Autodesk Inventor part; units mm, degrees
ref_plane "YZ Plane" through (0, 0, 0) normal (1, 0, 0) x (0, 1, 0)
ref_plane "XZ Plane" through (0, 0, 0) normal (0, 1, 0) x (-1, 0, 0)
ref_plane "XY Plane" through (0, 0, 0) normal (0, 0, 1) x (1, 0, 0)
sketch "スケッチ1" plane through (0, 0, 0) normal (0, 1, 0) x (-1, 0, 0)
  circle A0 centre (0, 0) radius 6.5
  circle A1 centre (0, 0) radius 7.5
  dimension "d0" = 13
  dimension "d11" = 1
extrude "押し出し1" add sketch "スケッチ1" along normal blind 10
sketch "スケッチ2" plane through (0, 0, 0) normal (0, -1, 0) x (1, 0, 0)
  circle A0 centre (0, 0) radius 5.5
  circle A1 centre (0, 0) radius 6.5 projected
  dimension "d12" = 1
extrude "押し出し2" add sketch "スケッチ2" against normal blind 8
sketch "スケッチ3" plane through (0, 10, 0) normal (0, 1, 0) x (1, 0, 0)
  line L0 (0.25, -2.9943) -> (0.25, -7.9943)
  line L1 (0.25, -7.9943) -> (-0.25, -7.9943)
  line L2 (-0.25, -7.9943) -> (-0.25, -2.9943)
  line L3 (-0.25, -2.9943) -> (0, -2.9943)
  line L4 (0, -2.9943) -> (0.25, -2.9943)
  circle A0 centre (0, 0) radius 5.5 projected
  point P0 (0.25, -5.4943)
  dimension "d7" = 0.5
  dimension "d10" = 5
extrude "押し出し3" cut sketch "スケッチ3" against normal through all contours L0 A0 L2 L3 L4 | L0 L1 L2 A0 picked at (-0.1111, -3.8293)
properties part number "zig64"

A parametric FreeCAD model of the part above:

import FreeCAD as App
import Part
import Sketcher

doc = App.newDocument("Part")
body = doc.addObject("PartDesign::Body", "Body")

sketch1 = body.newObject("Sketcher::SketchObject", "Sketch")
sketch1.AttachmentSupport = (doc.getObject("XZ_Plane"), [""])
sketch1.MapMode = "FlatFace"
sketch1.addGeometry(Part.Circle(App.Vector(0, 0, 0), App.Vector(0, 0, 1), 7.5), False)
sketch1.addGeometry(Part.Circle(App.Vector(0, 0, 0), App.Vector(0, 0, 1), 6.5), False)
sketch1.addConstraint(Sketcher.Constraint("Coincident", 0, 3, -1, 1))
sketch1.addConstraint(Sketcher.Constraint("Coincident", 1, 3, -1, 1))
sketch1.addConstraint(Sketcher.Constraint("Diameter", 1, 13.0))
sketch1.addConstraint(Sketcher.Constraint("Diameter", 0, 15.0))
pad1 = body.newObject("PartDesign::Pad", "Pad")
pad1.Profile = sketch1
pad1.Length = 10
pad1.Reversed = True

sketch2 = body.newObject("Sketcher::SketchObject", "Sketch001")
sketch2.AttachmentSupport = (doc.getObject("XZ_Plane"), [""])
sketch2.MapMode = "FlatFace"
sketch2.addGeometry(Part.Circle(App.Vector(0, 0, 0), App.Vector(0, 0, 1), 6.5), False)
sketch2.addGeometry(Part.Circle(App.Vector(0, 0, 0), App.Vector(0, 0, 1), 5.5), False)
sketch2.addConstraint(Sketcher.Constraint("Coincident", 0, 3, -1, 1))
sketch2.addConstraint(Sketcher.Constraint("Coincident", 1, 3, -1, 1))
sketch2.addConstraint(Sketcher.Constraint("Diameter", 0, 13.0))
sketch2.addConstraint(Sketcher.Constraint("Diameter", 1, 11.0))
pad2 = body.newObject("PartDesign::Pad", "Pad001")
pad2.Profile = sketch2
pad2.Length = 8
pad2.Reversed = True

sketch3 = body.newObject("Sketcher::SketchObject", "Sketch002")
sketch3.AttachmentSupport = (doc.getObject("XZ_Plane"), [""])
sketch3.MapMode = "FlatFace"
sketch3.AttachmentOffset = App.Placement(App.Vector(0, 0, -10), App.Rotation())
sketch3.addGeometry(Part.LineSegment(App.Vector(0.25, 2.9943, 0), App.Vector(-0.25, 2.9943, 0)), False)
sketch3.addGeometry(Part.LineSegment(App.Vector(-0.25, 2.9943, 0), App.Vector(-0.25, 7.9943, 0)), False)
sketch3.addGeometry(Part.LineSegment(App.Vector(-0.25, 7.9943, 0), App.Vector(0.25, 7.9943, 0)), False)
sketch3.addGeometry(Part.LineSegment(App.Vector(0.25, 7.9943, 0), App.Vector(0.25, 2.9943, 0)), False)
sketch3.addConstraint(Sketcher.Constraint("Coincident", 0, 2, 1, 1))
sketch3.addConstraint(Sketcher.Constraint("Coincident", 1, 2, 2, 1))
sketch3.addConstraint(Sketcher.Constraint("Coincident", 2, 2, 3, 1))
sketch3.addConstraint(Sketcher.Constraint("Coincident", 3, 2, 0, 1))
sketch3.addConstraint(Sketcher.Constraint("Horizontal", 0))
sketch3.addConstraint(Sketcher.Constraint("Vertical", 1))
sketch3.addConstraint(Sketcher.Constraint("Horizontal", 2))
sketch3.addConstraint(Sketcher.Constraint("Vertical", 3))
sketch3.addConstraint(Sketcher.Constraint("DistanceY", 1, 1, 1, 2, 5.0))
sketch3.addConstraint(Sketcher.Constraint("DistanceX", 0, 2, 0, 1, 0.5))
sketch3.addConstraint(Sketcher.Constraint("DistanceX", 0, 2, -1, 1, 0.25))
sketch3.addConstraint(Sketcher.Constraint("DistanceY", -1, 1, 0, 2, 2.9943))
pocket1 = body.newObject("PartDesign::Pocket", "Pocket")
pocket1.Profile = sketch3
pocket1.Type = "ThroughAll"
pocket1.Reversed = True

doc.recompute()
